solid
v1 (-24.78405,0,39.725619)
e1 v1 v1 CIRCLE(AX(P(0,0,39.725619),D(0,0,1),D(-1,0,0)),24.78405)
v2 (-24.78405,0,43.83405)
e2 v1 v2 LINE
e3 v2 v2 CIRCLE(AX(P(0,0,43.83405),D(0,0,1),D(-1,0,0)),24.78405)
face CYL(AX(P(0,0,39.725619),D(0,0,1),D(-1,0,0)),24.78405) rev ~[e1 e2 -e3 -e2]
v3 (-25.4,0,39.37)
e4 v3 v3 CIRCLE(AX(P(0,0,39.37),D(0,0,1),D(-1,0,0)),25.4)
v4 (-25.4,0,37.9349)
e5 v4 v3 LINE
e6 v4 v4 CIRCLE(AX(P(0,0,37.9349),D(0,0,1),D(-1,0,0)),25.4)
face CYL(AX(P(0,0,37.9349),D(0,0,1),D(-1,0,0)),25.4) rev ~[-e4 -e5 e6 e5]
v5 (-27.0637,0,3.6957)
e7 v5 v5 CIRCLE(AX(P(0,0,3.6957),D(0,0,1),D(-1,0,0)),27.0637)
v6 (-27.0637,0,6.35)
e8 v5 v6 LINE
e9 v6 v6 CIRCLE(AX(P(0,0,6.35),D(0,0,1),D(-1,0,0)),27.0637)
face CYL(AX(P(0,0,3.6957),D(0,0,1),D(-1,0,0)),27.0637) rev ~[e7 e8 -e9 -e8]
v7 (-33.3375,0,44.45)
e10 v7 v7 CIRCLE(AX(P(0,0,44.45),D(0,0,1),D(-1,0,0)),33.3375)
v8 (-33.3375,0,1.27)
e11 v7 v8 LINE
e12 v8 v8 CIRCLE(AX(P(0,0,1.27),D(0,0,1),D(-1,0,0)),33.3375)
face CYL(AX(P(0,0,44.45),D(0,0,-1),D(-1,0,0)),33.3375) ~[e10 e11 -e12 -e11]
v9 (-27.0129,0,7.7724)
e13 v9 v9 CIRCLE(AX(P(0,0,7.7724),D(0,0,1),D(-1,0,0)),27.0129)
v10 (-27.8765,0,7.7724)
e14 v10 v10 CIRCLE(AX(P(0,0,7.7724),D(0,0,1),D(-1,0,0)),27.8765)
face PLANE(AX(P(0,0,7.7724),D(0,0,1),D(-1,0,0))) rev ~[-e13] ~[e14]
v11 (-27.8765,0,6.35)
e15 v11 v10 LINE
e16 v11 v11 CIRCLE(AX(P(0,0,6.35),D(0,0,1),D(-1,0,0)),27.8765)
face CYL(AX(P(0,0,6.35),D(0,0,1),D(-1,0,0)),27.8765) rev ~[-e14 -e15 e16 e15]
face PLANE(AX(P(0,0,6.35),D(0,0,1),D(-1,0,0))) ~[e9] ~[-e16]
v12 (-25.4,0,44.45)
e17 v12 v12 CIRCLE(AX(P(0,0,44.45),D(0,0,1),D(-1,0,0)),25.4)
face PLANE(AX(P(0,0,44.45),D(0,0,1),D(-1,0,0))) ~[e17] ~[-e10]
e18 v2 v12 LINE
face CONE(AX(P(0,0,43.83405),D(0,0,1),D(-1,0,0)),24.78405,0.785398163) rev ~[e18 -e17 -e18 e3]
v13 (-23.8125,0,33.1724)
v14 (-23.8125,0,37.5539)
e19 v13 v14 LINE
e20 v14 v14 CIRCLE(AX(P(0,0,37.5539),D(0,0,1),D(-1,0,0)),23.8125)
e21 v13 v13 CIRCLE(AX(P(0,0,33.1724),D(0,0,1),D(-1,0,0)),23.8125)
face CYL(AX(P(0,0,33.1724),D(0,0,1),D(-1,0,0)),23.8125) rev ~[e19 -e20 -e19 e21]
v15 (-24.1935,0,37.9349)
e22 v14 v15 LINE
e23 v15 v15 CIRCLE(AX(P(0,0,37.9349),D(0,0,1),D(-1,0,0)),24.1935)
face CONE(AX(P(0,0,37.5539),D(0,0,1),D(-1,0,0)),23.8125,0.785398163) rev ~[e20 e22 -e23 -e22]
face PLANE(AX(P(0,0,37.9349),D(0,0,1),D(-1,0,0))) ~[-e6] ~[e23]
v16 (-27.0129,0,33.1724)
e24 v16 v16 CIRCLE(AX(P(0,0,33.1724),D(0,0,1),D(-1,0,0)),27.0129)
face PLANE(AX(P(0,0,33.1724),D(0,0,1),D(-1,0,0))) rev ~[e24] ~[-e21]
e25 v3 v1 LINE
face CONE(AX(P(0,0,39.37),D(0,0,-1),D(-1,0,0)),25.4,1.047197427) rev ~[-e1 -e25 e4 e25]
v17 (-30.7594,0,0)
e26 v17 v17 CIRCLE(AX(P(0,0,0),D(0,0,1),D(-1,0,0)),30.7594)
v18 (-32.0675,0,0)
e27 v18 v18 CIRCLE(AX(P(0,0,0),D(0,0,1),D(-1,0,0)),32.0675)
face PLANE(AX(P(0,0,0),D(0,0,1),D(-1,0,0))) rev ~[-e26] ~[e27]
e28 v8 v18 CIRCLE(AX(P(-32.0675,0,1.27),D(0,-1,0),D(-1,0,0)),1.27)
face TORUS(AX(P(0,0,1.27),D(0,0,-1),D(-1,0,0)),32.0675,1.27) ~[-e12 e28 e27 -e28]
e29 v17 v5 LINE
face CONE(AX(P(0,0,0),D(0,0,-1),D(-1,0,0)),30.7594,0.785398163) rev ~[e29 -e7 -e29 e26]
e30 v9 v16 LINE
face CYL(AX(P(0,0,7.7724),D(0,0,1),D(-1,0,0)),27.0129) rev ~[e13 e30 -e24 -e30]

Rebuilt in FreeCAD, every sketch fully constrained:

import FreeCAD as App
import Part
import Sketcher

V = App.Vector
Q = App.Units.Quantity


def edges_at(feature, points):
    """Names of the edges that pass closest to the given points."""
    edges = feature.Shape.Edges
    near = lambda p: min(range(len(edges)), key=lambda i: edges[i].distToShape(Part.Vertex(*p))[0])
    return sorted({f"Edge{near(p) + 1}" for p in points})

doc = App.newDocument("Part")
params = doc.addObject("Spreadsheet::Sheet", "Params")
for row, (alias, value) in enumerate([
    ("sketch1_height", "1 in"),
    ("sketch1_height2", "1.75 in"),
    ("sketch1_width", "0.3125 in"),
    ("sketch1_width2", "0.032 in"),
    ("sketch1_width3", "0.034 in"),
    ("revolution_angle", "360 deg"),
    ("fillet_radius", "0.05 in"),
], start=1):
    params.set(f"A{row}", alias)
    params.set(f"B{row}", "=" + value)
    params.setAlias(f"B{row}", alias)

body = doc.addObject("PartDesign::Body", "Body")

sketch1 = doc.addObject("Sketcher::SketchObject", "Sketch")
body.addObject(sketch1)
sketch1.AttachmentSupport = (doc.XZ_Plane, [""])
sketch1.MapMode = "FlatFace"
sketch1.addGeometry([
    Part.LineSegment(V(-25.4, 44.5, 0), V(-33.3, 44.5, 0)),
    Part.LineSegment(V(-33.3, 44.5, 0), V(-33.3, 0, 0)),
    Part.LineSegment(V(-33.3, 0, 0), V(-30.8, 0, 0)),
    Part.LineSegment(V(-30.8, 0, 0), V(-27.1, 3.7, 0)),
    Part.LineSegment(V(-27.1, 3.7, 0), V(-27.1, 6.3, 0)),
    Part.LineSegment(V(-27.1, 6.3, 0), V(-27.9, 6.3, 0)),
    Part.LineSegment(V(-27.9, 6.3, 0), V(-27.9, 7.8, 0)),
    Part.LineSegment(V(-27.9, 7.8, 0), V(-27, 7.8, 0)),
    Part.LineSegment(V(-27, 7.8, 0), V(-27, 33.2, 0)),
    Part.LineSegment(V(-27, 33.2, 0), V(-23.8, 33.2, 0)),
    Part.LineSegment(V(-23.8, 33.2, 0), V(-23.8, 37.6, 0)),
    Part.LineSegment(V(-23.8, 37.6, 0), V(-24.2, 37.9, 0)),
    Part.LineSegment(V(-24.2, 37.9, 0), V(-25.4, 37.9, 0)),
    Part.LineSegment(V(-25.4, 37.9, 0), V(-25.4, 39.4, 0)),
    Part.LineSegment(V(-25.4, 39.4, 0), V(-24.8, 39.7, 0)),
    Part.LineSegment(V(-24.8, 39.7, 0), V(-24.8, 43.8, 0)),
    Part.LineSegment(V(-24.8, 43.8, 0), V(-25.4, 44.5, 0)),
], False)
sketch1.addConstraint([
    Sketcher.Constraint("Coincident", 0, 2, 1, 1),
    Sketcher.Constraint("Coincident", 1, 2, 2, 1),
    Sketcher.Constraint("Coincident", 2, 2, 3, 1),
    Sketcher.Constraint("Coincident", 3, 2, 4, 1),
    Sketcher.Constraint("Coincident", 4, 2, 5, 1),
    Sketcher.Constraint("Coincident", 5, 2, 6, 1),
    Sketcher.Constraint("Coincident", 6, 2, 7, 1),
    Sketcher.Constraint("Coincident", 7, 2, 8, 1),
    Sketcher.Constraint("Coincident", 8, 2, 9, 1),
    Sketcher.Constraint("Coincident", 9, 2, 10, 1),
    Sketcher.Constraint("Coincident", 10, 2, 11, 1),
    Sketcher.Constraint("Coincident", 11, 2, 12, 1),
    Sketcher.Constraint("Coincident", 12, 2, 13, 1),
    Sketcher.Constraint("Coincident", 13, 2, 14, 1),
    Sketcher.Constraint("Coincident", 14, 2, 15, 1),
    Sketcher.Constraint("Coincident", 15, 2, 16, 1),
    Sketcher.Constraint("Coincident", 16, 2, 0, 1),
    Sketcher.Constraint("Horizontal", 0),
    Sketcher.Constraint("Vertical", 1),
    Sketcher.Constraint("Horizontal", 2),
    Sketcher.Constraint("Vertical", 4),
    Sketcher.Constraint("Horizontal", 5),
    Sketcher.Constraint("Vertical", 6),
    Sketcher.Constraint("Horizontal", 7),
    Sketcher.Constraint("Vertical", 8),
    Sketcher.Constraint("Horizontal", 9),
    Sketcher.Constraint("Vertical", 10),
    Sketcher.Constraint("Horizontal", 12),
    Sketcher.Constraint("Vertical", 13),
    Sketcher.Constraint("Vertical", 15),
    Sketcher.Constraint("PointOnObject", 1, 2, -1),
    Sketcher.Constraint("Perpendicular", 3, 11),
    Sketcher.Constraint("Parallel", 11, 16),
    Sketcher.Constraint("Vertical", 13, 2, 16, 2),
    Sketcher.Constraint("DistanceY", 8, 1, 8, 2, Q("1 in")),
    Sketcher.Constraint("DistanceX", 12, 2, -1, 1, Q("1 in")),
    Sketcher.Constraint("Angle", 3, Q("45 deg")),
    Sketcher.Constraint("Angle", 14, Q("30.000007 deg")),
    Sketcher.Constraint("DistanceY", 1, 2, 1, 1, Q("1.75 in")),
    Sketcher.Constraint("DistanceY", 4, 2, 0, 2, Q("1.5 in")),
    Sketcher.Constraint("DistanceY", 13, 2, 16, 2, Q("0.2 in")),
    Sketcher.Constraint("DistanceX", 0, 2, 0, 1, Q("0.3125 in")),
    Sketcher.Constraint("DistanceX", 5, 2, 5, 1, Q("0.032 in")),
    Sketcher.Constraint("DistanceX", 7, 1, 7, 2, Q("0.034 in")),
    Sketcher.Constraint("DistanceX", 9, 1, 9, 2, Q("0.126 in")),
    Sketcher.Constraint("DistanceY", 6, 1, 6, 2, Q("0.056 in")),
    Sketcher.Constraint("DistanceX", 0, 2, 11, 2, Q("0.36 in")),
    Sketcher.Constraint("DistanceX", 2, 1, 2, 2, Q("0.1015 in")),
    Sketcher.Constraint("DistanceY", 4, 1, 4, 2, Q("0.1045 in")),
    Sketcher.Constraint("DistanceY", 10, 1, 10, 2, Q("0.1725 in")),
    Sketcher.Constraint("DistanceY", 15, 1, 15, 2, Q("4.108431 mm")),
])
sketch1.setExpression("Constraints[34]", "Params.sketch1_height")
sketch1.setExpression("Constraints[38]", "Params.sketch1_height2")
sketch1.setExpression("Constraints[41]", "Params.sketch1_width")
sketch1.setExpression("Constraints[42]", "Params.sketch1_width2")
sketch1.setExpression("Constraints[43]", "Params.sketch1_width3")
revolution = doc.addObject("PartDesign::Revolution", "Revolution")
body.addObject(revolution)
revolution.Profile = sketch1
revolution.ReferenceAxis = (sketch1, ["V_Axis"])
revolution.setExpression("Angle", "Params.revolution_angle")
doc.recompute()

fillet = doc.addObject("PartDesign::Fillet", "Fillet")
body.addObject(fillet)
fillet.Base = (revolution, edges_at(revolution, [(33.337, 0, 0)]))
fillet.setExpression("Radius", "Params.fillet_radius")

doc.recompute()
